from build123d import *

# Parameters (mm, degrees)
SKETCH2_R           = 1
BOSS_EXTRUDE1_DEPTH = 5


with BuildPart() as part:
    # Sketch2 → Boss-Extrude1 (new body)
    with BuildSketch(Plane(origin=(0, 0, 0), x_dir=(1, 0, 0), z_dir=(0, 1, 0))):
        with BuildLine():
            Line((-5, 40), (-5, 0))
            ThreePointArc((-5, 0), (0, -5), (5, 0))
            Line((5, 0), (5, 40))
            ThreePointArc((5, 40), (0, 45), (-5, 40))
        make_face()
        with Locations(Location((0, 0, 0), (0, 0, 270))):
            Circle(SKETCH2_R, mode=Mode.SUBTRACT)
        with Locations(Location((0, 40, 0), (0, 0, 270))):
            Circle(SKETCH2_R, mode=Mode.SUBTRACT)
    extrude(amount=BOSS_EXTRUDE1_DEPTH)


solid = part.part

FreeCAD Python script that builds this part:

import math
import FreeCAD as App
import Part
import Sketcher
from FreeCAD import Vector
Q = App.Units.Quantity

doc = App.newDocument("Part")
body = doc.addObject("PartDesign::Body", "Body")

# Sketch on XZ plane
sketch1 = body.newObject("Sketcher::SketchObject", "Sketch")
sketch1.AttachmentSupport = (doc.getObject("XZ_Plane"), [""])
sketch1.MapMode = "FlatFace"
sketch1.addGeometry([
    Part.LineSegment(Vector(-5, -40, 0), Vector(-5, 0, 0)),  # 0
    Part.ArcOfCircle(Part.Circle(Vector(0, 0, 0), Vector(0, 0, 1), 5), math.radians(0), math.radians(180)),  # 1
    Part.LineSegment(Vector(5, 0, 0), Vector(5, -40, 0)),  # 2
    Part.ArcOfCircle(Part.Circle(Vector(0, -40, 0), Vector(0, 0, 1), 5), math.radians(180), math.radians(360)),  # 3
    Part.Circle(Vector(0, 0, 0), Vector(0, 0, 1), 1),  # 4
    Part.Circle(Vector(0, -40, 0), Vector(0, 0, 1), 1),  # 5
], False)
sketch1.addConstraint([
    Sketcher.Constraint("Tangent", 0, 2, 1, 2),
    Sketcher.Constraint("Tangent", 1, 1, 2, 1),
    Sketcher.Constraint("Tangent", 2, 2, 3, 2),
    Sketcher.Constraint("Tangent", 3, 1, 0, 1),
    Sketcher.Constraint("Vertical", 0),
    Sketcher.Constraint("Vertical", 2),
    Sketcher.Constraint("Coincident", 1, 3, -1, 1),
    Sketcher.Constraint("Coincident", 4, 3, -1, 1),
    Sketcher.Constraint("Coincident", 5, 3, 3, 3),
    Sketcher.Constraint("Equal", 4, 5),
    Sketcher.Constraint("Diameter", 4, Q("2 mm")),
    Sketcher.Constraint("Radius", 1, Q("5 mm")),
    Sketcher.Constraint("DistanceY", 0, 1, 0, 2, Q("40 mm")),
])
pad1 = body.newObject("PartDesign::Pad", "Pad")
pad1.Profile = sketch1
pad1.Length = 5
pad1.Reversed = True

doc.recompute()
